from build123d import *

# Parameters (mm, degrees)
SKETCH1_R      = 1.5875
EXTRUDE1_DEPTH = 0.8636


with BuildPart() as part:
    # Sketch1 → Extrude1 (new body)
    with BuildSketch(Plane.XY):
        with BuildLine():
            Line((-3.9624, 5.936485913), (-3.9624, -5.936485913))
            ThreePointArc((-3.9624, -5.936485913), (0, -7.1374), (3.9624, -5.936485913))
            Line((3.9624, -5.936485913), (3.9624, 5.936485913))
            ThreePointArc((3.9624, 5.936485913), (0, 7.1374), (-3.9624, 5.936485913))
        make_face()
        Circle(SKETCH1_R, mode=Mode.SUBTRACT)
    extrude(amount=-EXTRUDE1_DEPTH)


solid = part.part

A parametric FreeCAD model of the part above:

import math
import FreeCAD as App
import Part
import Sketcher

V = App.Vector
Q = App.Units.Quantity

doc = App.newDocument("Part")
body = doc.addObject("PartDesign::Body", "Body")

sketch1 = doc.addObject("Sketcher::SketchObject", "Sketch")
body.addObject(sketch1)
sketch1.AttachmentSupport = (doc.XY_Plane, [""])
sketch1.MapMode = "FlatFace"
sketch1.addGeometry(Part.LineSegment(V(-4, 5.9, 0), V(-4, -5.9, 0)), False)
sketch1.addGeometry(Part.ArcOfCircle(Part.Circle(V(0, 0, 0), V(0, 0, 1), 7.1), math.radians(-124), math.radians(-56)), False)
sketch1.addGeometry(Part.LineSegment(V(4, -5.9, 0), V(4, 5.9, 0)), False)
sketch1.addGeometry(Part.ArcOfCircle(Part.Circle(V(0, 0, 0), V(0, 0, 1), 7.1), math.radians(56), math.radians(124)), False)
sketch1.addGeometry(Part.Circle(V(0, 0, 0), V(0, 0, 1), 1.6), False)
sketch1.addConstraint(Sketcher.Constraint("Coincident", 0, 2, 1, 1))
sketch1.addConstraint(Sketcher.Constraint("Coincident", 1, 2, 2, 1))
sketch1.addConstraint(Sketcher.Constraint("Coincident", 2, 2, 3, 1))
sketch1.addConstraint(Sketcher.Constraint("Coincident", 3, 2, 0, 1))
sketch1.addConstraint(Sketcher.Constraint("Vertical", 0))
sketch1.addConstraint(Sketcher.Constraint("Vertical", 2))
sketch1.addConstraint(Sketcher.Constraint("Coincident", 1, 3, -1, 1))
sketch1.addConstraint(Sketcher.Constraint("Coincident", 3, 3, -1, 1))
sketch1.addConstraint(Sketcher.Constraint("Coincident", 4, 3, -1, 1))
sketch1.addConstraint(Sketcher.Constraint("Equal", 1, 3))
sketch1.addConstraint(Sketcher.Constraint("Horizontal", 0, 2, 1, 2))
sketch1.addConstraint(Sketcher.Constraint("Diameter", 4, Q("0.125 in")))
sketch1.addConstraint(Sketcher.Constraint("Radius", 1, Q("0.281 in")))
sketch1.addConstraint(Sketcher.Constraint("DistanceX", 0, 2, -1, 1, Q("0.156 in")))
pad1 = doc.addObject("PartDesign::Pad", "Pad")
body.addObject(pad1)
pad1.Profile = sketch1
pad1.Length = Q("0.034 in")
pad1.Reversed = True

doc.recompute()
